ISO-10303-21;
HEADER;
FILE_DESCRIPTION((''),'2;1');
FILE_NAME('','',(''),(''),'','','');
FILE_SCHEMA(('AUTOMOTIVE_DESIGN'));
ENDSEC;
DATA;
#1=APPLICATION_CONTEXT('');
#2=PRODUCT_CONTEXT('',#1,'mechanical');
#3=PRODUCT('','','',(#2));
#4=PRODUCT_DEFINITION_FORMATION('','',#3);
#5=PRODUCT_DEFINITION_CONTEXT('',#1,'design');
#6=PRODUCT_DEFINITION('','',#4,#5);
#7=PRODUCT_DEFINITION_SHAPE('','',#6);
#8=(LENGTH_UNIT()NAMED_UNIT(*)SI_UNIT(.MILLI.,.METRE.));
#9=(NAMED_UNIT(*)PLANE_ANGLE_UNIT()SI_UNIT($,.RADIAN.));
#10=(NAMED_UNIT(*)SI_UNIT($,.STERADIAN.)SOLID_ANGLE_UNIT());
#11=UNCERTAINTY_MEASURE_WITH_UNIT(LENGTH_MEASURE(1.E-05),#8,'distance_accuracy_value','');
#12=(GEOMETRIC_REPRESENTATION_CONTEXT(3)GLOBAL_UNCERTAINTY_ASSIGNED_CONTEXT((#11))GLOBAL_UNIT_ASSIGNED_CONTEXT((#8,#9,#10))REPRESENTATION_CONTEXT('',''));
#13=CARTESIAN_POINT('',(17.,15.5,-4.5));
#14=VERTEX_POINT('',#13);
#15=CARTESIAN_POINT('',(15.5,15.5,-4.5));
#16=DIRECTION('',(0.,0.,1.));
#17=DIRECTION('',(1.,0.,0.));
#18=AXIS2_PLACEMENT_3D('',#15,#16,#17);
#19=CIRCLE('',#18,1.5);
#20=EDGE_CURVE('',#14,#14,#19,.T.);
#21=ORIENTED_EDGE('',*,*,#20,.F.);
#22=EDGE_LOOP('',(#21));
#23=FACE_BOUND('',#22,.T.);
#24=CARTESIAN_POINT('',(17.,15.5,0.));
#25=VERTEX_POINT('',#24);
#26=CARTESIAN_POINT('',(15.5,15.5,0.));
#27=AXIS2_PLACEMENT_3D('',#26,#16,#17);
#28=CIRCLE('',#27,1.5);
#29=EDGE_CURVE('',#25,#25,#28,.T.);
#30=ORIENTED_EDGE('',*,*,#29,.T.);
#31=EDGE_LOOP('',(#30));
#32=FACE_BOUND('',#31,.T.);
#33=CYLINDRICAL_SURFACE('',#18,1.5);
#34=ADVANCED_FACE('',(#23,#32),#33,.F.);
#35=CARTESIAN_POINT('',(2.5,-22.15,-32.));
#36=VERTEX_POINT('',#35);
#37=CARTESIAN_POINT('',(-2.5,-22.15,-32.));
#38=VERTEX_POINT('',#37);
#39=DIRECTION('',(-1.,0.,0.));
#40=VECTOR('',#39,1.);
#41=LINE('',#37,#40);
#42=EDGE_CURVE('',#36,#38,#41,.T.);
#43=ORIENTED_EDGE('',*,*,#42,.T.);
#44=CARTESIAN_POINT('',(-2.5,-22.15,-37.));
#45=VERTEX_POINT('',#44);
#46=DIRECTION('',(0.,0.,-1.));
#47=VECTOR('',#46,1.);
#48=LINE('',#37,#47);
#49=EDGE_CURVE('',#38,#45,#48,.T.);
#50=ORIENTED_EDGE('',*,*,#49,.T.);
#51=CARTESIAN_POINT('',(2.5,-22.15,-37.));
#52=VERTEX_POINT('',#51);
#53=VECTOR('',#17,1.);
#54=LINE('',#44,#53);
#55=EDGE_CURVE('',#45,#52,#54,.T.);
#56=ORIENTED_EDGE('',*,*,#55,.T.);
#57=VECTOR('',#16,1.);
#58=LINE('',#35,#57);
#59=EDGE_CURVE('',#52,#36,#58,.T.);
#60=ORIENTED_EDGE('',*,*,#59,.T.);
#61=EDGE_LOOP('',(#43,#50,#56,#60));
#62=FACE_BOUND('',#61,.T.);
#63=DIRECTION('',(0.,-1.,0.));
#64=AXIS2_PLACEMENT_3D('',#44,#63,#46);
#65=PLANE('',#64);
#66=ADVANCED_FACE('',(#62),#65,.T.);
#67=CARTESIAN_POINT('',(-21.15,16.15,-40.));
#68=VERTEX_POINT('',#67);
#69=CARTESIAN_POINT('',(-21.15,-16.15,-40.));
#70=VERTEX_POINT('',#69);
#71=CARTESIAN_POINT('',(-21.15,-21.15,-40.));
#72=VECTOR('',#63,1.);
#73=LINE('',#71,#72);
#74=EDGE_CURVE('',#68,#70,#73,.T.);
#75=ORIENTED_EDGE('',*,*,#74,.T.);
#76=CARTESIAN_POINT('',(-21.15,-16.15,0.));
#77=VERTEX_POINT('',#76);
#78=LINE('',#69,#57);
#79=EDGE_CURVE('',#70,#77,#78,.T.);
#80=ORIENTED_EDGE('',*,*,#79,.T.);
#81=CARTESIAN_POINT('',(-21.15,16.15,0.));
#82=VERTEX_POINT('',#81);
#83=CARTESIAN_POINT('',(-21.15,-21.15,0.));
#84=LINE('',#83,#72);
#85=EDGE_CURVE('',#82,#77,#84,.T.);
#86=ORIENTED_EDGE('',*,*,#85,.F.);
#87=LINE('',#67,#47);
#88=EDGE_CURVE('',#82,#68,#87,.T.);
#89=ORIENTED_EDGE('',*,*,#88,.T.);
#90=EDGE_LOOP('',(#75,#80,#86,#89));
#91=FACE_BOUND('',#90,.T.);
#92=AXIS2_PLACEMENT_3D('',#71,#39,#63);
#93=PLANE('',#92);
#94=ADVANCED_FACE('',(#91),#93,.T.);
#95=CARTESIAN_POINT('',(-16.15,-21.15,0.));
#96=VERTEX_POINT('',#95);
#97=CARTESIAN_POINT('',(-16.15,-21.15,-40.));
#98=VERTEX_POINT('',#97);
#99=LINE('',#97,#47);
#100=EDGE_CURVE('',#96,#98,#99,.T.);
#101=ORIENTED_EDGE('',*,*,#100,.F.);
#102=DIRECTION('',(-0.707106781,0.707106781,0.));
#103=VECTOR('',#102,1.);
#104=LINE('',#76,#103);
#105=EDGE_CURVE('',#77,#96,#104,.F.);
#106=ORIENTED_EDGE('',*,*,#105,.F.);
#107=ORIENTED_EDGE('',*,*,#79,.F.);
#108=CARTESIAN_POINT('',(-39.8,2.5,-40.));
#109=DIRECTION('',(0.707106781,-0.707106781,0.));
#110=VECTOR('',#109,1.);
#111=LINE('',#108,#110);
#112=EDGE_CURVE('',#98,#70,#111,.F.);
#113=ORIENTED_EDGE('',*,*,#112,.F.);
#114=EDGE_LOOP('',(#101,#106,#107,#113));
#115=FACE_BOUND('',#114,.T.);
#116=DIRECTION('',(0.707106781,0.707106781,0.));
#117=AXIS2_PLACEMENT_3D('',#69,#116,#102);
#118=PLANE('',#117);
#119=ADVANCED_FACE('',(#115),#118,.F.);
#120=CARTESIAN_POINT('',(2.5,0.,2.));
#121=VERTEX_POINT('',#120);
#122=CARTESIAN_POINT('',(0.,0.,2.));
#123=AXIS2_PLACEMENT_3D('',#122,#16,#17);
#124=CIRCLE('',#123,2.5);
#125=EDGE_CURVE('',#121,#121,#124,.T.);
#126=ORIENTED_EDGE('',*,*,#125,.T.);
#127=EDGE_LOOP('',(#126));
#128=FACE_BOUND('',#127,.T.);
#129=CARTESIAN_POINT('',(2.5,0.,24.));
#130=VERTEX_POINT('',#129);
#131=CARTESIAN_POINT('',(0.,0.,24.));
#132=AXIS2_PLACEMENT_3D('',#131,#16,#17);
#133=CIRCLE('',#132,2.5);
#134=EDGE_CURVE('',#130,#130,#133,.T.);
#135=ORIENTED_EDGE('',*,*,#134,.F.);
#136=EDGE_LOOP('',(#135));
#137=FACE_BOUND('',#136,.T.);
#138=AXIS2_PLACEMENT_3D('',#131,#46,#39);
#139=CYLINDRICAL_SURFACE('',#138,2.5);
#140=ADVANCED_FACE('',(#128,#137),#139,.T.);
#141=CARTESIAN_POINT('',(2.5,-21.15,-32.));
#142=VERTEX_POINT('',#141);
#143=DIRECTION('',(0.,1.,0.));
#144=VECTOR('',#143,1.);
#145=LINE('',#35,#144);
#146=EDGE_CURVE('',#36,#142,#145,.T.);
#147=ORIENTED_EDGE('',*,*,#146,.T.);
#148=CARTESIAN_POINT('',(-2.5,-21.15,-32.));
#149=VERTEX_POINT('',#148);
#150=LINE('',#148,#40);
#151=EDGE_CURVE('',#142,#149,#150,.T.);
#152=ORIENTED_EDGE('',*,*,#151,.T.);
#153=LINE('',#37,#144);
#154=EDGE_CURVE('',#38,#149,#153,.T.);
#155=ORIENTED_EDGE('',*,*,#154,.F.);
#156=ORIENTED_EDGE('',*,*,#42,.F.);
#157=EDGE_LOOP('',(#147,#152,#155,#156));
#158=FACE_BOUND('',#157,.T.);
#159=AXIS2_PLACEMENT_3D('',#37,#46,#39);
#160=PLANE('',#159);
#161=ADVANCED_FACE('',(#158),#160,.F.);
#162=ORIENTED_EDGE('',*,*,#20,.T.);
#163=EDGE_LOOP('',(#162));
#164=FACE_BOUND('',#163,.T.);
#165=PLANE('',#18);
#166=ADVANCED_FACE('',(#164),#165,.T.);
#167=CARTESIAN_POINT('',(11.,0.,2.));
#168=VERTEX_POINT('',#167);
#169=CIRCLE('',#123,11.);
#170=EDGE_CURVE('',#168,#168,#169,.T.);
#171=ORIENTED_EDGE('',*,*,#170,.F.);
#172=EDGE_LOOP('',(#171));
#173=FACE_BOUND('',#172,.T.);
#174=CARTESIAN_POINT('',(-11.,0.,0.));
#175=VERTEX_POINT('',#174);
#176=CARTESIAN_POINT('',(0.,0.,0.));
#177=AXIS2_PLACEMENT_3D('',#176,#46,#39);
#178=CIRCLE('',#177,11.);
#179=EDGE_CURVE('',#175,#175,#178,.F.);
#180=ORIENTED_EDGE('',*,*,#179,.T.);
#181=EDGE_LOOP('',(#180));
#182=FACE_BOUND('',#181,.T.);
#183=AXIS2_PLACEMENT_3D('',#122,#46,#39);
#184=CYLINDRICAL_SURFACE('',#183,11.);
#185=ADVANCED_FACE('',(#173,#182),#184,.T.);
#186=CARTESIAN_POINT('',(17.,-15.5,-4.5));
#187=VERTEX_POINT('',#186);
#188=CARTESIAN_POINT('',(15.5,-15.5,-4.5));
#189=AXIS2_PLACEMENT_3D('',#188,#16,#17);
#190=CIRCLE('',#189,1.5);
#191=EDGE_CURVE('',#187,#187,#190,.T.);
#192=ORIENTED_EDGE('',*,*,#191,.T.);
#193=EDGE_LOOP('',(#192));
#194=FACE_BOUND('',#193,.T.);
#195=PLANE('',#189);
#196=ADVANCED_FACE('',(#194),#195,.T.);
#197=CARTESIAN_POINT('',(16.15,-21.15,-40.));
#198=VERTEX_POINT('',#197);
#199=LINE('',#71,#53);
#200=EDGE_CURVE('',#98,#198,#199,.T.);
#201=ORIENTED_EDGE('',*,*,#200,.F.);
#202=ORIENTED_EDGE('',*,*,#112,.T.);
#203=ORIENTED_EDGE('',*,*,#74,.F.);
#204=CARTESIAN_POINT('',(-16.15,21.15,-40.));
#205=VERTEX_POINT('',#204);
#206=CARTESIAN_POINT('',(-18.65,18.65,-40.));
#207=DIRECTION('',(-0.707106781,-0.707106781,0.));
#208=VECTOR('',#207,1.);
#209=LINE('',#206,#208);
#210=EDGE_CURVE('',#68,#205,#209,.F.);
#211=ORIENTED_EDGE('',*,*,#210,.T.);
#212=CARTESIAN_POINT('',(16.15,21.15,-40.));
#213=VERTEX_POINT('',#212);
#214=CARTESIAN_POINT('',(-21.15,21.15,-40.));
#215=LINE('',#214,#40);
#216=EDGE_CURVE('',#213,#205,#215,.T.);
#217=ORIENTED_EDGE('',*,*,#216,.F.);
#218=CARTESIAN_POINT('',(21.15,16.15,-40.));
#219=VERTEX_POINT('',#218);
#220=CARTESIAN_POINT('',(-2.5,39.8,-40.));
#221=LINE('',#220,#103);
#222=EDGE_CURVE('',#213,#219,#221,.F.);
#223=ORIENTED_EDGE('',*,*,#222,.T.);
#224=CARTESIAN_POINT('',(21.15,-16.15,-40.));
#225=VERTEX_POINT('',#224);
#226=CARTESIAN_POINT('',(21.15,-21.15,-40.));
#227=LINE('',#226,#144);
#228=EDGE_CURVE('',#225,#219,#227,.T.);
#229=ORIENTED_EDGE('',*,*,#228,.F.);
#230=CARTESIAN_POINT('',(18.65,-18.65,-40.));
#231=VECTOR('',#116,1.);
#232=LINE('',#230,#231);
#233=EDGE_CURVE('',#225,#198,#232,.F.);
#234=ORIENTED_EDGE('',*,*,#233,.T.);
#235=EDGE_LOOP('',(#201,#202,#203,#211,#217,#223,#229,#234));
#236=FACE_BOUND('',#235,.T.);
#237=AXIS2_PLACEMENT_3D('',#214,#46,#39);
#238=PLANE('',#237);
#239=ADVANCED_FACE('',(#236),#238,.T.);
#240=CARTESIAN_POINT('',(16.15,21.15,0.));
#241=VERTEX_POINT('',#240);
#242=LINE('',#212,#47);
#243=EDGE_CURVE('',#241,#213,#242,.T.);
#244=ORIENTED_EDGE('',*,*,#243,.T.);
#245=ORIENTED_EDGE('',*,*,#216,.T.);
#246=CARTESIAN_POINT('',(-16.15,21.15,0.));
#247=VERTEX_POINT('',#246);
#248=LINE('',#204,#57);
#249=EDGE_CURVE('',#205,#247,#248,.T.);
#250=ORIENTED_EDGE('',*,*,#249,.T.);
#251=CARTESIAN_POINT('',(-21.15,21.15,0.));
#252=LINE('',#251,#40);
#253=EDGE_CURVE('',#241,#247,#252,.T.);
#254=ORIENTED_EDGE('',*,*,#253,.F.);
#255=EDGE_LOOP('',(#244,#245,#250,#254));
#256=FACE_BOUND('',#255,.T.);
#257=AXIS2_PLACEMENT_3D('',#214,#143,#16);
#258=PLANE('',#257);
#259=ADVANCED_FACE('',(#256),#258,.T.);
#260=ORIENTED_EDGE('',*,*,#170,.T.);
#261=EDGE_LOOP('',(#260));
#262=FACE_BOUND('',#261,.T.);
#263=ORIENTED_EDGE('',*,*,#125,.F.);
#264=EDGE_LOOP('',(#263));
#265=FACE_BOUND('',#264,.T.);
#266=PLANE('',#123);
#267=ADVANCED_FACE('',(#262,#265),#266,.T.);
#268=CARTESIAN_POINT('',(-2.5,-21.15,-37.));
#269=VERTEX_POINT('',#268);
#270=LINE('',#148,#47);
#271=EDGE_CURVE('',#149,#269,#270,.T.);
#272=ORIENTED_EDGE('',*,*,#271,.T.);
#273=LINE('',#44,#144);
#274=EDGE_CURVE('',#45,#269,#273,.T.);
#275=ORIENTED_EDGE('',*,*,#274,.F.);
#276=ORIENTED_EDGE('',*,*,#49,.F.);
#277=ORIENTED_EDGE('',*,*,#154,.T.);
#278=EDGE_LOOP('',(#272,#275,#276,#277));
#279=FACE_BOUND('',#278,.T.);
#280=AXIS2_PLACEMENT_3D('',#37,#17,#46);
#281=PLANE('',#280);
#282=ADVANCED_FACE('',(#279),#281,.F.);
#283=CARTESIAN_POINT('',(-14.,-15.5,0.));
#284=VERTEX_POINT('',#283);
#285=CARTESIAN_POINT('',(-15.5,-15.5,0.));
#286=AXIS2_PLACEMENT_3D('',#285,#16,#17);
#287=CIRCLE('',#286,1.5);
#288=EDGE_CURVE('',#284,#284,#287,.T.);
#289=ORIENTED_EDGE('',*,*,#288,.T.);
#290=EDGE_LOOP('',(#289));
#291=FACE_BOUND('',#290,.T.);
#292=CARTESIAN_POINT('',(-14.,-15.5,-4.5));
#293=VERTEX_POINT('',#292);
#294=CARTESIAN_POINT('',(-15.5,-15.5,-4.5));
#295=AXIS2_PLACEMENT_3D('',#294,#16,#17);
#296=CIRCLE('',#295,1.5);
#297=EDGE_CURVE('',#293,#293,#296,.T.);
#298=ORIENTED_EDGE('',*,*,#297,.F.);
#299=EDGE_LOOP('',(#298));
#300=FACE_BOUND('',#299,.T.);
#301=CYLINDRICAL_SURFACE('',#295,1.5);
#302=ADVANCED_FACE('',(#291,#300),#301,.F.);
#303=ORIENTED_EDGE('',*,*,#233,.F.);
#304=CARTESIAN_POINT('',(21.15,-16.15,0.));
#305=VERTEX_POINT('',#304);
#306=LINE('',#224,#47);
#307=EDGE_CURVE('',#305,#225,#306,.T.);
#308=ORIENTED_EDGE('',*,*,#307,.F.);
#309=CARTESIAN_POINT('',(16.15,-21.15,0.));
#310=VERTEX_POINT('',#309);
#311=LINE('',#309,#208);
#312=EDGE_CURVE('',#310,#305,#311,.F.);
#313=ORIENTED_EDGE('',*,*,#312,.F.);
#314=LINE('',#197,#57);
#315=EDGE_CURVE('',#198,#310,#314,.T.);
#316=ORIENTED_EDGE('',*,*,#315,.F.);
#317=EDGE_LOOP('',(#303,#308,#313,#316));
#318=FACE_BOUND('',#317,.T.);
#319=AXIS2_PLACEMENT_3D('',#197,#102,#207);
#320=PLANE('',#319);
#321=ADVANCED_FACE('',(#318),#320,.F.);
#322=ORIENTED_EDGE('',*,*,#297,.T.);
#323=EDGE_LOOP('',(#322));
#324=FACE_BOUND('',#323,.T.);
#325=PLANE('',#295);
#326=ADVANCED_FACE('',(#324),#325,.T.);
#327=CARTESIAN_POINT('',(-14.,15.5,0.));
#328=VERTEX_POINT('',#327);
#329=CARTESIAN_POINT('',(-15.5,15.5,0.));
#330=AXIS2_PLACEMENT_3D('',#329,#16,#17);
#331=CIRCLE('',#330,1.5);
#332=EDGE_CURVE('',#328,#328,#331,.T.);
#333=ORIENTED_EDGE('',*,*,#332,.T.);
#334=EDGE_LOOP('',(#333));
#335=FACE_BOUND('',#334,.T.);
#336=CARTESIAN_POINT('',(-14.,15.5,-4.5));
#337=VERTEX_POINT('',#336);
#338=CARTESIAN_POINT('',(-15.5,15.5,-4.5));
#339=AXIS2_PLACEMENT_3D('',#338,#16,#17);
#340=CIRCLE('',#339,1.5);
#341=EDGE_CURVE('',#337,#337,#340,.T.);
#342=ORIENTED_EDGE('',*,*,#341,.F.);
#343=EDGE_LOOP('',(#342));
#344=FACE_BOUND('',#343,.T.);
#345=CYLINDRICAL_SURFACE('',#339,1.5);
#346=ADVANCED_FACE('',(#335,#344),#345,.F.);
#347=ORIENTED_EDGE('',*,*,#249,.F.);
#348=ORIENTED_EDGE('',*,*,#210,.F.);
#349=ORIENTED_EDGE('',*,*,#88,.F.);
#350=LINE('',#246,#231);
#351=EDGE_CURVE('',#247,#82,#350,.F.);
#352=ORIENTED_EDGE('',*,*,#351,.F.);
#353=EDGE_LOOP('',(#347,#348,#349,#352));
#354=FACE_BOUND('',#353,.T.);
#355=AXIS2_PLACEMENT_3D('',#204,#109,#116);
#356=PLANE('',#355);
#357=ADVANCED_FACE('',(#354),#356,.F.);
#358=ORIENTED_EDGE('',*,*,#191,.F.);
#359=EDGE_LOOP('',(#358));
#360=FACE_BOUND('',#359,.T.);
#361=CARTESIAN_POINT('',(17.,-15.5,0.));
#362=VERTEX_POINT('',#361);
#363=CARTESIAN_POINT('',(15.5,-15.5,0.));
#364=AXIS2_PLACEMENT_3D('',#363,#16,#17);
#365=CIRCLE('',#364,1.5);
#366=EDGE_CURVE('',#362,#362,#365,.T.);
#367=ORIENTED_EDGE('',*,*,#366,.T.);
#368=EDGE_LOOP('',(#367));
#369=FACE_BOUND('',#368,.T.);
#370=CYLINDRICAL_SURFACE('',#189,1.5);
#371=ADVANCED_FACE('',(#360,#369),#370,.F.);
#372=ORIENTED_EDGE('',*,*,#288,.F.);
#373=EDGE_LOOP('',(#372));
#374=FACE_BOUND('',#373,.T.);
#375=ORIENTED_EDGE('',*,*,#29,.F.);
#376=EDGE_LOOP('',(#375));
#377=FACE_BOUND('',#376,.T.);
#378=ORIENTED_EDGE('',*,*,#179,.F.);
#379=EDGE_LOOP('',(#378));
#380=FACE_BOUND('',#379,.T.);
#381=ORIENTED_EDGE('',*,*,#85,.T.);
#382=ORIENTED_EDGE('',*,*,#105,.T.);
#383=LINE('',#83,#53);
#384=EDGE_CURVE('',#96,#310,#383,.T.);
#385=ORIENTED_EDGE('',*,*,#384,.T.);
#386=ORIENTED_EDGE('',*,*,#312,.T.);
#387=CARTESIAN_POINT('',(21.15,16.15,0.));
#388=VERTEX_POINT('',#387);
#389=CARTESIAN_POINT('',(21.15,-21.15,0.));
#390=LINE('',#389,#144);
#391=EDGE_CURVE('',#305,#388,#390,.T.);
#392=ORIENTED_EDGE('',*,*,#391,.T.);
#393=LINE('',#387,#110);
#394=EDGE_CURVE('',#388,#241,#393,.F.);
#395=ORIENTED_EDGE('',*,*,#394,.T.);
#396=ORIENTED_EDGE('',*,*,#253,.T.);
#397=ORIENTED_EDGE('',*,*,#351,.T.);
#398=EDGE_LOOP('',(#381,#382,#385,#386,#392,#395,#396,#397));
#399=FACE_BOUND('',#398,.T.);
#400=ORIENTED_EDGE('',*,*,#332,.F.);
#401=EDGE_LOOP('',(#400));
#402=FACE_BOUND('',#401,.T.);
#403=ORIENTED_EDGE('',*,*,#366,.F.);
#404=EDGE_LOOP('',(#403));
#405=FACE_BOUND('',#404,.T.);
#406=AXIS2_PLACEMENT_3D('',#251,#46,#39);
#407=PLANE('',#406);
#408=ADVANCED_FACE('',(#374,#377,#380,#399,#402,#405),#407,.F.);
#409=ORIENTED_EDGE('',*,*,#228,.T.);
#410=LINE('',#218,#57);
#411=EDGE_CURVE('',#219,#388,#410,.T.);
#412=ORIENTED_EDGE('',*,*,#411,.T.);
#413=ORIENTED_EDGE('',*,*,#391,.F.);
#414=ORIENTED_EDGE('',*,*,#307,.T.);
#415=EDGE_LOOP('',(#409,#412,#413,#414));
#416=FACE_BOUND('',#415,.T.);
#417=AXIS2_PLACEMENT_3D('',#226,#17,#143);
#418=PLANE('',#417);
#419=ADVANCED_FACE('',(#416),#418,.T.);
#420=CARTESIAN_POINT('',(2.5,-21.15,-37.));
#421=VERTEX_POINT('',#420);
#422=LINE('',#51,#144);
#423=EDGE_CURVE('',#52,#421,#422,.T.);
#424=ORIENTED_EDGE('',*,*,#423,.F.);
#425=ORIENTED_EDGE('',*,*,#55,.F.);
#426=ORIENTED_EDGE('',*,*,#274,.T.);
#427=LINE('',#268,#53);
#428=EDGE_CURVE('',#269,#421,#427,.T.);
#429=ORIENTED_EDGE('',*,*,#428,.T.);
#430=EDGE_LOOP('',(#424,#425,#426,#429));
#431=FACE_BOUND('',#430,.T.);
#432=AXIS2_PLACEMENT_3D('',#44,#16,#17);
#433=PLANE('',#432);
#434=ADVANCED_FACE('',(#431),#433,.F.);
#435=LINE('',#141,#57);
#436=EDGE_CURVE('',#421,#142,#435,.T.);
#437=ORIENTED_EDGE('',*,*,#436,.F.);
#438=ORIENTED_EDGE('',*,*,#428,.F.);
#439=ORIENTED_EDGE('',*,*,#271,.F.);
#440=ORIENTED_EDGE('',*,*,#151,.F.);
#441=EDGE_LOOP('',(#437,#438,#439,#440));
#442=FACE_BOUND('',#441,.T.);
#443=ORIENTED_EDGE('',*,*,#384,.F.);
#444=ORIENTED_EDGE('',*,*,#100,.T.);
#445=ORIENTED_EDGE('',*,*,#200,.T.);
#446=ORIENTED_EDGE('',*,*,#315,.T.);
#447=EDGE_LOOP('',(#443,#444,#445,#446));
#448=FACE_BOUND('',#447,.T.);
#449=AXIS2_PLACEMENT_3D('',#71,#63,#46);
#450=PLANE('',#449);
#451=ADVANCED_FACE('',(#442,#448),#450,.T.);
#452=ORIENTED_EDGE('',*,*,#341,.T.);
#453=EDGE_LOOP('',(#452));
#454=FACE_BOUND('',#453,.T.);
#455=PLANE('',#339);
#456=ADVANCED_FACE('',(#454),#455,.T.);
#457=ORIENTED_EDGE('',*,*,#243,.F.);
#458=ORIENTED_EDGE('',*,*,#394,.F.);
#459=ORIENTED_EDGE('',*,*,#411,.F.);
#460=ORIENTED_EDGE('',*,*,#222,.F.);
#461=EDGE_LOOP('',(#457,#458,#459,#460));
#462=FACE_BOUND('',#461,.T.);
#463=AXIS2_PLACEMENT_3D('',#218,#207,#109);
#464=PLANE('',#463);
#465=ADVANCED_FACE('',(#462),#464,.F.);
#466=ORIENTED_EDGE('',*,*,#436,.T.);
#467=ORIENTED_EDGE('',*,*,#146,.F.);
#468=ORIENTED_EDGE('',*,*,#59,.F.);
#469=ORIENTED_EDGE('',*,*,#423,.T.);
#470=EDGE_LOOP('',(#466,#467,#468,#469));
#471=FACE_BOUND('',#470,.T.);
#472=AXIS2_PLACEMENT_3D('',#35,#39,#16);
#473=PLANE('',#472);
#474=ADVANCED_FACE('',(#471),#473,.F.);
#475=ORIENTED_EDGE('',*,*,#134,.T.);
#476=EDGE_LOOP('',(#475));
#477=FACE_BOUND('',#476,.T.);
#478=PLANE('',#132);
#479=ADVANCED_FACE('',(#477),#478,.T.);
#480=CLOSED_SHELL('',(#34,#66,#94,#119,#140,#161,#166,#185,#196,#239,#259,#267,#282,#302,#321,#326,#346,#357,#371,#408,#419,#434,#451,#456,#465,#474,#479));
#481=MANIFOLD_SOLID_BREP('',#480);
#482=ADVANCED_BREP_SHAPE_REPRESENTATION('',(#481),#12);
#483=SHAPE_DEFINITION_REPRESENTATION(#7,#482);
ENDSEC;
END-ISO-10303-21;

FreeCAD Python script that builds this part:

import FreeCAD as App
import Part
import Sketcher

V = App.Vector
Q = App.Units.Quantity


def edges_at(feature, points):
    """Names of the edges that pass closest to the given points."""
    edges = feature.Shape.Edges
    near = lambda p: min(range(len(edges)), key=lambda i: edges[i].distToShape(Part.Vertex(*p))[0])
    return sorted({f"Edge{near(p) + 1}" for p in points})


def add_polygon(sketch, points):
    """Adds a closed chain of lines whose ends are joined by coincident constraints."""
    first, n = sketch.GeometryCount, len(points)
    for a, b in zip(points, points[1:] + points[:1]):
        sketch.addGeometry(Part.LineSegment(App.Vector(*a, 0), App.Vector(*b, 0)), False)
    for i in range(n):
        sketch.addConstraint(Sketcher.Constraint("Coincident", first + i, 2, first + (i + 1) % n, 1))

doc = App.newDocument("Part")
body = doc.addObject("PartDesign::Body", "Body")

# Sketch on XY plane
sketch1 = body.newObject("Sketcher::SketchObject", "Sketch")
sketch1.AttachmentSupport = (doc.getObject("XY_Plane"), [""])
sketch1.MapMode = "FlatFace"
add_polygon(sketch1, [(-21.15, 21.15), (-21.15, -21.15), (21.15, -21.15), (21.15, 21.15)])  # lines 0-3
sketch1.addConstraint([
    Sketcher.Constraint("Vertical", 0),
    Sketcher.Constraint("Horizontal", 1),
    Sketcher.Constraint("Vertical", 2),
    Sketcher.Constraint("Horizontal", 3),
    Sketcher.Constraint("Symmetric", 0, 2, 2, 2, -1, 1),
    Sketcher.Constraint("Equal", 3, 0),
    Sketcher.Constraint("DistanceX", 1, 1, 1, 2, Q("42.3 mm")),
])
pad1 = body.newObject("PartDesign::Pad", "Pad")
pad1.Profile = sketch1
pad1.Length = 40
pad1.Reversed = True

# Sketch on XY plane
sketch2 = body.newObject("Sketcher::SketchObject", "Sketch001")
sketch2.AttachmentSupport = (doc.getObject("XY_Plane"), [""])
sketch2.MapMode = "FlatFace"
sketch2.addGeometry(Part.Circle(V(0, 0, 0), V(0, 0, 1), 11), False)
sketch2.addConstraint([
    Sketcher.Constraint("Coincident", 0, 3, -1, 1),
    Sketcher.Constraint("Diameter", 0, Q("22 mm")),
])
pad2 = body.newObject("PartDesign::Pad", "Pad001")
pad2.Profile = sketch2
pad2.Length = 2

# Sketch on XY plane
sketch3 = body.newObject("Sketcher::SketchObject", "Sketch002")
sketch3.AttachmentSupport = (doc.getObject("XY_Plane"), [""])
sketch3.MapMode = "FlatFace"
sketch3.AttachmentOffset = App.Placement(V(0, 0, 2), App.Rotation())
sketch3.addGeometry(Part.Circle(V(0, 0, 0), V(0, 0, 1), 2.5), False)
sketch3.addConstraint([
    Sketcher.Constraint("Coincident", 0, 3, -1, 1),
    Sketcher.Constraint("Diameter", 0, Q("5 mm")),
])
pad3 = body.newObject("PartDesign::Pad", "Pad002")
pad3.Profile = sketch3
pad3.Length = 22

# Sketch on XY plane
sketch4 = body.newObject("Sketcher::SketchObject", "Sketch003")
sketch4.AttachmentSupport = (doc.getObject("XY_Plane"), [""])
sketch4.MapMode = "FlatFace"
sketch4.addGeometry([
    Part.Circle(V(-15.5, 15.5, 0), V(0, 0, 1), 1.5),
    Part.Circle(V(15.5, 15.5, 0), V(0, 0, 1), 1.5),
    Part.Circle(V(15.5, -15.5, 0), V(0, 0, 1), 1.5),
    Part.Circle(V(-15.5, -15.5, 0), V(0, 0, 1), 1.5),
], False)
sketch4.addConstraint([
    Sketcher.Constraint("Equal", 0, 1),
    Sketcher.Constraint("Equal", 1, 2),
    Sketcher.Constraint("Equal", 2, 3),
    Sketcher.Constraint("Symmetric", 0, 3, 2, 3, -1, 1),
    Sketcher.Constraint("Symmetric", 1, 3, 3, 3, -1, 1),
    Sketcher.Constraint("Symmetric", 0, 3, 1, 3, -2),
    Sketcher.Constraint("Diameter", 0, Q("3 mm")),
    Sketcher.Constraint("DistanceX", 0, 3, 1, 3, Q("31 mm")),
    Sketcher.Constraint("DistanceY", 2, 3, 1, 3, Q("31 mm")),
])
pocket1 = body.newObject("PartDesign::Pocket", "Pocket")
pocket1.Profile = sketch4
pocket1.Length = 4.5
doc.recompute()

chamfer = body.newObject("PartDesign::Chamfer", "Chamfer")
chamfer.Base = (pocket1, edges_at(pocket1, [
    (-21.15, 21.15, -20),
    (21.15, 21.15, -20),
    (21.15, -21.15, -20),
    (-21.15, -21.15, -20),
]))
chamfer.Size = 5

# Sketch on XZ plane
sketch5 = body.newObject("Sketcher::SketchObject", "Sketch004")
sketch5.AttachmentSupport = (doc.getObject("XZ_Plane"), [""])
sketch5.MapMode = "FlatFace"
sketch5.AttachmentOffset = App.Placement(V(0, 0, 21.15), App.Rotation())
add_polygon(sketch5, [(-2.5, -32), (-2.5, -37), (2.5, -37), (2.5, -32)])  # lines 0-3
sketch5.addConstraint([
    Sketcher.Constraint("Vertical", 0),
    Sketcher.Constraint("Horizontal", 1),
    Sketcher.Constraint("Vertical", 2),
    Sketcher.Constraint("Horizontal", 3),
    Sketcher.Constraint("Equal", 3, 0),
    Sketcher.Constraint("DistanceX", 1, 1, 1, 2, Q("5 mm")),
    Sketcher.Constraint("DistanceY", 0, 2, -1, 1, Q("37 mm")),
    Sketcher.Constraint("DistanceX", 0, 2, -1, 1, Q("2.5 mm")),
])
pad4 = body.newObject("PartDesign::Pad", "Pad003")
pad4.Profile = sketch5
pad4.Length = 1

doc.recompute()
